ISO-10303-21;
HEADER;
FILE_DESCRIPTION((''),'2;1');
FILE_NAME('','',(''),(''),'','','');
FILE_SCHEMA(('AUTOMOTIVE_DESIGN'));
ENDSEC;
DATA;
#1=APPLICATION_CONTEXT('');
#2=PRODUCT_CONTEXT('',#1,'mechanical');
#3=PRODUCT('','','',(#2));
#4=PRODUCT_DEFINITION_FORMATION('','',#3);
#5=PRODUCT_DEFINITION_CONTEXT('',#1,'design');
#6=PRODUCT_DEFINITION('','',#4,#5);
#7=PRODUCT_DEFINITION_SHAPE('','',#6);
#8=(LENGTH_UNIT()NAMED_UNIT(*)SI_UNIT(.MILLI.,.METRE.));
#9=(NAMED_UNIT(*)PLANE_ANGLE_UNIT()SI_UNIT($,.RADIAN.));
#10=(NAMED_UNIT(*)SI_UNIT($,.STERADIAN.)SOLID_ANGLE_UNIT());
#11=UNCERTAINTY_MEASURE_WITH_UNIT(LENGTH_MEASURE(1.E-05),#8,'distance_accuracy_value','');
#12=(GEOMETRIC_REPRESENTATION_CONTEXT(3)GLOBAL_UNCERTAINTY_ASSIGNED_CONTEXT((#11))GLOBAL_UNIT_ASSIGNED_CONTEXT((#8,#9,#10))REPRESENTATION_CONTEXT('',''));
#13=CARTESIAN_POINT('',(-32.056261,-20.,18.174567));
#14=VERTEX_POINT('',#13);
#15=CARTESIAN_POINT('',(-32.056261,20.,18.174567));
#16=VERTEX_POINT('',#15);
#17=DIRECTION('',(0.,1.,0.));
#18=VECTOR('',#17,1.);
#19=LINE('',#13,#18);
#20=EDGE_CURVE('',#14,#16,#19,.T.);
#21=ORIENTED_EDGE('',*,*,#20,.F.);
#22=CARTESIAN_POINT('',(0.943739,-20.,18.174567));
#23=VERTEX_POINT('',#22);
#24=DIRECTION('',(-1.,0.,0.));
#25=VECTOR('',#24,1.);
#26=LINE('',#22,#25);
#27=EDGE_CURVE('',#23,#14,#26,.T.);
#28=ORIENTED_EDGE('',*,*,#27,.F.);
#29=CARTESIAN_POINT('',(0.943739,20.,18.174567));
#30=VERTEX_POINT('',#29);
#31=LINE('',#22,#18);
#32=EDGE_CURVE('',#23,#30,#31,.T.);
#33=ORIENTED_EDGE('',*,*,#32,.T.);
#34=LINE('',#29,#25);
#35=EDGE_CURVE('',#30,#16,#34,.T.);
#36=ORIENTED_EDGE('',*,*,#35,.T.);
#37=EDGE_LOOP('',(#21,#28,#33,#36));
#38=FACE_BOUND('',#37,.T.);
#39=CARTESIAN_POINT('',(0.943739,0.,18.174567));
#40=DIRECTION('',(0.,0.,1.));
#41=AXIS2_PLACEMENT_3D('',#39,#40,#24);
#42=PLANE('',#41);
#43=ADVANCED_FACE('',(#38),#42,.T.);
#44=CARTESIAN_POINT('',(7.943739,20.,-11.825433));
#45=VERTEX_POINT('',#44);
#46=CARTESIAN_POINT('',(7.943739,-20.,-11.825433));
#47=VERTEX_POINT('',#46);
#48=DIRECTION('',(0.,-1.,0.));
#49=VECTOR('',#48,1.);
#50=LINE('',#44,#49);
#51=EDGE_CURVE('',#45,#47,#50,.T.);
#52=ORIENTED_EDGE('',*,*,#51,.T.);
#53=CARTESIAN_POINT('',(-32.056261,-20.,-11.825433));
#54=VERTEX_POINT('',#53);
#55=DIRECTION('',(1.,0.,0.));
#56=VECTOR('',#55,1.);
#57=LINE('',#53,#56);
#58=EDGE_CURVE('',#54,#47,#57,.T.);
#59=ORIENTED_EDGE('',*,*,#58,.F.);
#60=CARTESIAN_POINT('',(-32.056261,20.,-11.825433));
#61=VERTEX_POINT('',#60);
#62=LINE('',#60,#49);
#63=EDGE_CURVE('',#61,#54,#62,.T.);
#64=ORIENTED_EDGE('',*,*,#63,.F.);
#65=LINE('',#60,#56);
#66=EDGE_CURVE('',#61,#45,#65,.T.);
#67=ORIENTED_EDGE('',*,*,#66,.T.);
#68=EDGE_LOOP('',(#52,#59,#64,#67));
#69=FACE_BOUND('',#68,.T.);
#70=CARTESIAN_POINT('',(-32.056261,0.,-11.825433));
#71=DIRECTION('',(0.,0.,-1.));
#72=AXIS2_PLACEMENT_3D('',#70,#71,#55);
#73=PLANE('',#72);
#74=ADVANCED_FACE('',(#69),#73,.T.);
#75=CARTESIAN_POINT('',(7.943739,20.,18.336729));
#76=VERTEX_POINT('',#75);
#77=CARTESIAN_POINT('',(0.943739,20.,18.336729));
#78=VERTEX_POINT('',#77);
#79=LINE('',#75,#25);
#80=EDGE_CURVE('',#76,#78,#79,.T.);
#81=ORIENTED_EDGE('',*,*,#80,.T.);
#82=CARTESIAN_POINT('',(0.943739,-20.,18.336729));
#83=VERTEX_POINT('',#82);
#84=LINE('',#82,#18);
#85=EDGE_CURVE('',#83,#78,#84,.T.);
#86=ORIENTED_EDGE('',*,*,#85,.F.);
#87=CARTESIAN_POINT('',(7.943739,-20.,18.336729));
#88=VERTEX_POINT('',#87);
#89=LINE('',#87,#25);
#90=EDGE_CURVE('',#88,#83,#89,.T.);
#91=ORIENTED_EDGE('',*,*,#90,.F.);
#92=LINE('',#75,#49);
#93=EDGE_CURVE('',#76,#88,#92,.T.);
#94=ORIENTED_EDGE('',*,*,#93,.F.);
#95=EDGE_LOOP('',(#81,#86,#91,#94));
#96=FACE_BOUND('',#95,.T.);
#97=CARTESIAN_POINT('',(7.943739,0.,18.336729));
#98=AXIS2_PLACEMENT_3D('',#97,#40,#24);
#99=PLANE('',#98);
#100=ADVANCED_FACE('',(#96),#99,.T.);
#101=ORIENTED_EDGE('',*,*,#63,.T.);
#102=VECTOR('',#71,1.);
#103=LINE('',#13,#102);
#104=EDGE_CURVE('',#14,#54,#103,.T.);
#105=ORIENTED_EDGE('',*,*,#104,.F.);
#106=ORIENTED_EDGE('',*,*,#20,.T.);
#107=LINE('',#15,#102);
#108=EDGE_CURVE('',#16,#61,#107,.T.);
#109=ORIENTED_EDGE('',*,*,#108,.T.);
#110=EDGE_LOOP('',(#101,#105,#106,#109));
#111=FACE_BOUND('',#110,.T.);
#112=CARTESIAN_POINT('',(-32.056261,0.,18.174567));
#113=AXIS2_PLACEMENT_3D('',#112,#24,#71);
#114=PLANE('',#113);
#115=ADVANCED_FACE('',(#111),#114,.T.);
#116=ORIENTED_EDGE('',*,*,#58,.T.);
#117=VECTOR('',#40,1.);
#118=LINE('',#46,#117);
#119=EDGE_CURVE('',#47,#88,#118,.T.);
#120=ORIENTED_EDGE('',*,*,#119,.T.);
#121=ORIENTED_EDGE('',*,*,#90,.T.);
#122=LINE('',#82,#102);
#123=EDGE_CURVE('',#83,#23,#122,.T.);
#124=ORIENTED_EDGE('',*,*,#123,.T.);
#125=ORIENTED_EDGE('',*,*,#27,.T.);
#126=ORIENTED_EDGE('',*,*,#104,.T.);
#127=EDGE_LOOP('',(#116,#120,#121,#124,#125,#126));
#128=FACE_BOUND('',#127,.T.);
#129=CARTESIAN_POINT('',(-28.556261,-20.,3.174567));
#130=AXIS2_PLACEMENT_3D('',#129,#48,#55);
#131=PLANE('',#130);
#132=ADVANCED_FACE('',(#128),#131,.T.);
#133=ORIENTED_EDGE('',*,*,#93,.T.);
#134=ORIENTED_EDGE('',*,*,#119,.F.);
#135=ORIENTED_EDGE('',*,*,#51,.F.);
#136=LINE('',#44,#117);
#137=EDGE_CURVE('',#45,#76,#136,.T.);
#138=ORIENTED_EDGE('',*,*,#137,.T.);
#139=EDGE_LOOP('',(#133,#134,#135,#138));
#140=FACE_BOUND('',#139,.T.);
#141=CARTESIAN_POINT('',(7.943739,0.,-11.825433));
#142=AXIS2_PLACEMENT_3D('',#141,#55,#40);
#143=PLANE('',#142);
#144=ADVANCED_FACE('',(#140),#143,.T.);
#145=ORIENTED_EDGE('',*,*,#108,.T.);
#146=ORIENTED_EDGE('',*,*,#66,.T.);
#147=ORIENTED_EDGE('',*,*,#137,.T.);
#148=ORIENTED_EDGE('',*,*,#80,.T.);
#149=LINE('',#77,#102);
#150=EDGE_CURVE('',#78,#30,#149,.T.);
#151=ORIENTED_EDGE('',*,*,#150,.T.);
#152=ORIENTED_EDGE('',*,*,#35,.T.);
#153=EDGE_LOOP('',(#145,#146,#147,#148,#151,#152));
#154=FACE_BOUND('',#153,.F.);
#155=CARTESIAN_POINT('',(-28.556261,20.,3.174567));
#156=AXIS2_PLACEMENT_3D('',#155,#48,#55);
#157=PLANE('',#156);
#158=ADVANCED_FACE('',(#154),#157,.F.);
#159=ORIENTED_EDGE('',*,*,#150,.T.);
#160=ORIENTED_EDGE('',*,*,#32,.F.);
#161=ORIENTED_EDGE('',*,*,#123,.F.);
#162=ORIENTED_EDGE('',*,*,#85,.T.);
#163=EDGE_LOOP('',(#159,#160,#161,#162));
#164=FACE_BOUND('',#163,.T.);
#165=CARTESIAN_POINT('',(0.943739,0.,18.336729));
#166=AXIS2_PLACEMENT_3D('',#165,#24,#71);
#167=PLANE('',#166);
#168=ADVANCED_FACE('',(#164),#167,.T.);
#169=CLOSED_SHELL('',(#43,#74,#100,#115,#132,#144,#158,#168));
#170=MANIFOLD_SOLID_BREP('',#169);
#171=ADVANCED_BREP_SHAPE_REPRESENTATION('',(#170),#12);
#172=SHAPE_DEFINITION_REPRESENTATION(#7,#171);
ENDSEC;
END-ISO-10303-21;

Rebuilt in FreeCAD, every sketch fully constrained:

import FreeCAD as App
import Part
import Sketcher

V = App.Vector

doc = App.newDocument("Part")
body = doc.addObject("PartDesign::Body", "Body")

sketch1 = body.newObject("Sketcher::SketchObject", "Sketch")
sketch1.AttachmentSupport = (doc.getObject("XZ_Plane"), [""])
sketch1.MapMode = "FlatFace"
sketch1.addGeometry(Part.LineSegment(V(-32.06, 18.17, 0), V(-32.06, -11.83, 0)), False)
sketch1.addGeometry(Part.LineSegment(V(-32.06, -11.83, 0), V(7.94, -11.83, 0)), False)
sketch1.addGeometry(Part.LineSegment(V(7.94, -11.83, 0), V(7.94, 18.34, 0)), False)
sketch1.addGeometry(Part.LineSegment(V(7.94, 18.34, 0), V(0.94, 18.34, 0)), False)
sketch1.addGeometry(Part.LineSegment(V(0.94, 18.34, 0), V(0.94, 18.17, 0)), False)
sketch1.addGeometry(Part.LineSegment(V(0.94, 18.17, 0), V(-32.06, 18.17, 0)), False)
sketch1.addConstraint(Sketcher.Constraint("Coincident", 0, 2, 1, 1))
sketch1.addConstraint(Sketcher.Constraint("Coincident", 1, 2, 2, 1))
sketch1.addConstraint(Sketcher.Constraint("Coincident", 2, 2, 3, 1))
sketch1.addConstraint(Sketcher.Constraint("Coincident", 3, 2, 4, 1))
sketch1.addConstraint(Sketcher.Constraint("Coincident", 4, 2, 5, 1))
sketch1.addConstraint(Sketcher.Constraint("Coincident", 5, 2, 0, 1))
sketch1.addConstraint(Sketcher.Constraint("Vertical", 0))
sketch1.addConstraint(Sketcher.Constraint("Horizontal", 1))
sketch1.addConstraint(Sketcher.Constraint("Vertical", 2))
sketch1.addConstraint(Sketcher.Constraint("Horizontal", 3))
sketch1.addConstraint(Sketcher.Constraint("Vertical", 4))
sketch1.addConstraint(Sketcher.Constraint("Horizontal", 5))
sketch1.addConstraint(Sketcher.Constraint("DistanceX", 1, 1, 1, 2, 40.0))
sketch1.addConstraint(Sketcher.Constraint("DistanceX", 3, 2, 3, 1, 7.0))
sketch1.addConstraint(Sketcher.Constraint("DistanceY", 0, 2, 0, 1, 30.0))
sketch1.addConstraint(Sketcher.Constraint("DistanceY", 2, 1, 2, 2, 30.162162))
sketch1.addConstraint(Sketcher.Constraint("DistanceX", 0, 2, -1, 1, 32.056261))
sketch1.addConstraint(Sketcher.Constraint("DistanceY", -1, 1, 2, 2, 18.336729))
pad1 = body.newObject("PartDesign::Pad", "Pad")
pad1.Profile = sketch1
pad1.Length = 40
pad1.Midplane = True

doc.recompute()
